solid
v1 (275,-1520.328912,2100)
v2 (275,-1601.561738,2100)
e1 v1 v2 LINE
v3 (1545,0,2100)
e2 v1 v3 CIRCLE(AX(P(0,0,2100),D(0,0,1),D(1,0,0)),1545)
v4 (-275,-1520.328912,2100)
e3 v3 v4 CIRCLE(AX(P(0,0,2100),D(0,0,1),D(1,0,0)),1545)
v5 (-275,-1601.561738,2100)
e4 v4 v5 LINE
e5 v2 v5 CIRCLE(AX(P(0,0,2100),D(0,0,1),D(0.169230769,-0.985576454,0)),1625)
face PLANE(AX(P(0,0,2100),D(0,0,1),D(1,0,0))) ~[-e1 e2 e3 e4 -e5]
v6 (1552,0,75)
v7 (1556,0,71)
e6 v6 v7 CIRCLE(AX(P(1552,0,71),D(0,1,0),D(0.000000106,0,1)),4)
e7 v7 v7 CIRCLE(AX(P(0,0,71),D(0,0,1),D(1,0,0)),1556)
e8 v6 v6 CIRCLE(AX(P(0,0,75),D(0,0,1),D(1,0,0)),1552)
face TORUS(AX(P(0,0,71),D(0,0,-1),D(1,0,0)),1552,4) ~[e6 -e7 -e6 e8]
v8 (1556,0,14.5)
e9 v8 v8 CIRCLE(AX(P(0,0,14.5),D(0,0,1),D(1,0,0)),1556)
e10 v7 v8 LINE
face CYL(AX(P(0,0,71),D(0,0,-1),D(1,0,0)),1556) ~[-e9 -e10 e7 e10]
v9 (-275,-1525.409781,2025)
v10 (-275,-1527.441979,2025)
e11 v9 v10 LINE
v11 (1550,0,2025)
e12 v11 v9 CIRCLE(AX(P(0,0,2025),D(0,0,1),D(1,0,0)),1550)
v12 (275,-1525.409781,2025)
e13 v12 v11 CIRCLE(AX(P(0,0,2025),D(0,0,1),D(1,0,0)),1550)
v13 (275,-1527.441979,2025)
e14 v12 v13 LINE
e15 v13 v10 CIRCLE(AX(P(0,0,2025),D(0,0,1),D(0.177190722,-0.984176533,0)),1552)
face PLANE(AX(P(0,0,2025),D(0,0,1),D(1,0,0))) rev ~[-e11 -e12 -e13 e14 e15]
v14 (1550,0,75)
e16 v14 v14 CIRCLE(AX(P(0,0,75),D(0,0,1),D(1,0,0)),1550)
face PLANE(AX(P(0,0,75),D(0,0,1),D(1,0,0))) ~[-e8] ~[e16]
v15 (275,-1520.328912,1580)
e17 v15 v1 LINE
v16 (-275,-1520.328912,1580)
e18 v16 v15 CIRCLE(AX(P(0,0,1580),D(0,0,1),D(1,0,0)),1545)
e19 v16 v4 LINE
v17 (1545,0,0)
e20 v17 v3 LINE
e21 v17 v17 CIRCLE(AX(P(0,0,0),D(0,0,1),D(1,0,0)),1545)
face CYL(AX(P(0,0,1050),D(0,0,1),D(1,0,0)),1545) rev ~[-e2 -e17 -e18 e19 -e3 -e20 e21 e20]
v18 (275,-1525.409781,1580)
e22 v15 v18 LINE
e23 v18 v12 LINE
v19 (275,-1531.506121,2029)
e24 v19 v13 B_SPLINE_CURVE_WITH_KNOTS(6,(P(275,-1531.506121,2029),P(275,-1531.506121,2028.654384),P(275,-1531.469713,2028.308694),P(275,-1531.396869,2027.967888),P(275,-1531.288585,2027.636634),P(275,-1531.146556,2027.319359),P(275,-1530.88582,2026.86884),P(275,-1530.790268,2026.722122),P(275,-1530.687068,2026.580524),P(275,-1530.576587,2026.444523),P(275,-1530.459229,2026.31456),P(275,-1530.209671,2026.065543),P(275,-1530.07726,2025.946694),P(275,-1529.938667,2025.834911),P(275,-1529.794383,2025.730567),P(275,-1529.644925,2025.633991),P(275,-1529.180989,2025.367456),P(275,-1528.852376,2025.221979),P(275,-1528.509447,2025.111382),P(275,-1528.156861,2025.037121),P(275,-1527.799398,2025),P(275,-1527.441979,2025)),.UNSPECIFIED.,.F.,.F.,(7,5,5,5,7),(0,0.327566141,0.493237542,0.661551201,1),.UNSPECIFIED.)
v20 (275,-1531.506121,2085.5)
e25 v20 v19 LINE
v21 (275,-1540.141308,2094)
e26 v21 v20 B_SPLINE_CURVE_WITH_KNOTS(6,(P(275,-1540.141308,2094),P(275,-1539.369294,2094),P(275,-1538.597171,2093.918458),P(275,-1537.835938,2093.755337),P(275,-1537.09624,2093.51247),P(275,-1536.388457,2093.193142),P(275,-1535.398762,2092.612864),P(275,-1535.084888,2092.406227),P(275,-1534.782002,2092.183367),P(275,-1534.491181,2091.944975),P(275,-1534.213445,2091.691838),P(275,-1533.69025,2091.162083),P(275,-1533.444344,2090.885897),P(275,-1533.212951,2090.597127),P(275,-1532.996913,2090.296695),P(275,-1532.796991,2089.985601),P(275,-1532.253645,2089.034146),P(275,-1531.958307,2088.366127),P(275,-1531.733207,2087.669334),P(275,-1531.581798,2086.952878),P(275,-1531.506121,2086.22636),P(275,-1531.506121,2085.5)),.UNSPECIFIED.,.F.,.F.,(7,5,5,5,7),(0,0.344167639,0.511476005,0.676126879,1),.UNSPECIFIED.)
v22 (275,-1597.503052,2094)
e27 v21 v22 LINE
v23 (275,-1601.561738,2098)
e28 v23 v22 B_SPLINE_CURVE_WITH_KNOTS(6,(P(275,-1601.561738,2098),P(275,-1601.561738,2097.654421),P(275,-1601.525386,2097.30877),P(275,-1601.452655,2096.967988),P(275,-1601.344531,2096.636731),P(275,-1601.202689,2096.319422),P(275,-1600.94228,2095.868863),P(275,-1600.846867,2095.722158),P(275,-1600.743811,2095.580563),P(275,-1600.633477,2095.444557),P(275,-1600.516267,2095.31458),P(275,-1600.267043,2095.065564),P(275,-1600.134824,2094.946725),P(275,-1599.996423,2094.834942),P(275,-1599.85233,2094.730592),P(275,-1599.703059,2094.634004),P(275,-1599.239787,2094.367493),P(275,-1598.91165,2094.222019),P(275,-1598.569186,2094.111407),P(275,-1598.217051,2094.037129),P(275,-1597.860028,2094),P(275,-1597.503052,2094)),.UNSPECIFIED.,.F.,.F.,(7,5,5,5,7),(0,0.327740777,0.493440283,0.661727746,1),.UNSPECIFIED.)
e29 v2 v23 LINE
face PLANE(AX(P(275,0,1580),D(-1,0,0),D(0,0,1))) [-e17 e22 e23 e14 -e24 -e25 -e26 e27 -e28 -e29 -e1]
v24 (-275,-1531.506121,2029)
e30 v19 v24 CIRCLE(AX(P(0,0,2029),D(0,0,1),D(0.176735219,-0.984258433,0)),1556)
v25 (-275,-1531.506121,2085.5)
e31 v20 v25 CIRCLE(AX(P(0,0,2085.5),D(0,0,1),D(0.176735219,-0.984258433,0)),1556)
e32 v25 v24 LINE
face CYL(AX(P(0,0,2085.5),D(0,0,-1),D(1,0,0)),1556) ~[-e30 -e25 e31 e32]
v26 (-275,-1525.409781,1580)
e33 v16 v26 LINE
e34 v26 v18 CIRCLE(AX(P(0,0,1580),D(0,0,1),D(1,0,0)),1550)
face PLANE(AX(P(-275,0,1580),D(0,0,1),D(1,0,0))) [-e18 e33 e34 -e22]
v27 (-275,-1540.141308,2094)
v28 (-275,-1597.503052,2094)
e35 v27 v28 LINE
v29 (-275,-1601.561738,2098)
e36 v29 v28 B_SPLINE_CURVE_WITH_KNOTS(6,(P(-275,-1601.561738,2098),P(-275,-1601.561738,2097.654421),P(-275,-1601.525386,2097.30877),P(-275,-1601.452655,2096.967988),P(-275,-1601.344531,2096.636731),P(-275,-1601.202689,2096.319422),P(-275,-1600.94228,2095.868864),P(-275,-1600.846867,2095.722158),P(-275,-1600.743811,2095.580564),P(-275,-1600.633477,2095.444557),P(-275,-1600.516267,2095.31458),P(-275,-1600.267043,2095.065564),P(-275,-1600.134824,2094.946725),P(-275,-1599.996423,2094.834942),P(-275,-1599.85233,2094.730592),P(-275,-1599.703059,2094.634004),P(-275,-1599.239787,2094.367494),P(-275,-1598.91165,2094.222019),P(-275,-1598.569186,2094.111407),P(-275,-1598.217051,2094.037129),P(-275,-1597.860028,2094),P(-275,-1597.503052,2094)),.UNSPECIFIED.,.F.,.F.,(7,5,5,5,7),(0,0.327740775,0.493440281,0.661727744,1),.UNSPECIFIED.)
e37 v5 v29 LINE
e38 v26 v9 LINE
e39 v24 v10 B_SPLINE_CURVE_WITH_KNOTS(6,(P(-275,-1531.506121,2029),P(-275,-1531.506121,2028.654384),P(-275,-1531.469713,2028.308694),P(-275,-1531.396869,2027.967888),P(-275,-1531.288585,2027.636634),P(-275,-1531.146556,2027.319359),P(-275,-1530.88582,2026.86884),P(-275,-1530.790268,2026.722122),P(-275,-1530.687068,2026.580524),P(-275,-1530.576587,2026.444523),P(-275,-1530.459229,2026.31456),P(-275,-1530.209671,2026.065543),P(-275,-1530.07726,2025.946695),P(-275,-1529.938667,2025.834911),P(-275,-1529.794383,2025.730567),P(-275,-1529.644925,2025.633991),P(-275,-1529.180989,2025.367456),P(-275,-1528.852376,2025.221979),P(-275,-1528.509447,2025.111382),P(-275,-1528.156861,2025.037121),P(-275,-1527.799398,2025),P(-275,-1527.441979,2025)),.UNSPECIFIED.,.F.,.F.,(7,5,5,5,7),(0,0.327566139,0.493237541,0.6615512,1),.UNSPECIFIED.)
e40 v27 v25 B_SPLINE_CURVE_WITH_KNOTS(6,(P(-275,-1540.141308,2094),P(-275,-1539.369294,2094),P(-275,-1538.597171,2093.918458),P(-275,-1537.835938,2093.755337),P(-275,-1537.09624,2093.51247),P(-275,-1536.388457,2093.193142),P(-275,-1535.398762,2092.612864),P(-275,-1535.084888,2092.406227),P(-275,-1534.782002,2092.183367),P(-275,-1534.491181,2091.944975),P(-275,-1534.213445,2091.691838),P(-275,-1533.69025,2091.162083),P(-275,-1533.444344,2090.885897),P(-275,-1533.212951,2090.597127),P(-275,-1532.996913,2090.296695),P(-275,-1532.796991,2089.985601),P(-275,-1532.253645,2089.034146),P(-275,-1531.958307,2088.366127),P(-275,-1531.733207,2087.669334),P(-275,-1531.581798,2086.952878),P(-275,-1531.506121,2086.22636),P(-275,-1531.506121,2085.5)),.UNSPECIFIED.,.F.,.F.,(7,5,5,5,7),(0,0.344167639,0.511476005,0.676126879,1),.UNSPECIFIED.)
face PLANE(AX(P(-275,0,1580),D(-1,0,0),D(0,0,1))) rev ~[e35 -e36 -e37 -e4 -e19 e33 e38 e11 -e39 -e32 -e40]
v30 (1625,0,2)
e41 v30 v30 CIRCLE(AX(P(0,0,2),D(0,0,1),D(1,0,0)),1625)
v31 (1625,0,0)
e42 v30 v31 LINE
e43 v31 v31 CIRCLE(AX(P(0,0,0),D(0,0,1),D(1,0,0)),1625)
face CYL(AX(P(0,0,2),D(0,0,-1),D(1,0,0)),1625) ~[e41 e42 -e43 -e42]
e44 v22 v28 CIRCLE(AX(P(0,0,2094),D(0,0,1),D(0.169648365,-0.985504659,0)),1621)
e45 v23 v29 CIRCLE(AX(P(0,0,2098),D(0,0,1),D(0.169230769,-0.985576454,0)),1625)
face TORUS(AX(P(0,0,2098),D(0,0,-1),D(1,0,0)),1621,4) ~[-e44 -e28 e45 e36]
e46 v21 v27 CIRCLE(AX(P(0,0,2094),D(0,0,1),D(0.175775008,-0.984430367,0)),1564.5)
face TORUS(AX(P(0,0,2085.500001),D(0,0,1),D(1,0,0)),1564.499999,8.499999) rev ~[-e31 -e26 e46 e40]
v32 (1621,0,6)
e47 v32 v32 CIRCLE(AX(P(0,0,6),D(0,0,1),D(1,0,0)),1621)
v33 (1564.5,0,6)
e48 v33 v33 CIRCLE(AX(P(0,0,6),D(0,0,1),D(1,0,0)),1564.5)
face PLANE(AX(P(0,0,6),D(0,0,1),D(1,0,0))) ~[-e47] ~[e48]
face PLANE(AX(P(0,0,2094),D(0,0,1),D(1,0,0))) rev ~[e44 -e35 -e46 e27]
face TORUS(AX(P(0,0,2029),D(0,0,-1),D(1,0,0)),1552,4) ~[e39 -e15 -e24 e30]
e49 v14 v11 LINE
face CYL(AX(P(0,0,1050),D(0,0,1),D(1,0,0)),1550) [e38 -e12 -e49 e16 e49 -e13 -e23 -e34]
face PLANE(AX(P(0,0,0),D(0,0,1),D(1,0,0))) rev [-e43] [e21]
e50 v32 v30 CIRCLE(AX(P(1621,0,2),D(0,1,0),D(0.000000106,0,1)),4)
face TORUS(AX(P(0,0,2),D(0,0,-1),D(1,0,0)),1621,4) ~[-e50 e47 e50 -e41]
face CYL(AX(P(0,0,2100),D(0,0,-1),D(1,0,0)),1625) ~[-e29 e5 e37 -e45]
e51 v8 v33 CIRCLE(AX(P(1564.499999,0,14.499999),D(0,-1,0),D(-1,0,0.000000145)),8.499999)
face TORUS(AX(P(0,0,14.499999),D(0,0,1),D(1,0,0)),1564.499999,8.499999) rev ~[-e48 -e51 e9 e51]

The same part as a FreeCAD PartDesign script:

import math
import FreeCAD as App
import Part
import Sketcher

V = App.Vector


def add_polygon(sketch, points):
    """Adds a closed chain of lines whose ends are joined by coincident constraints."""
    first, n = sketch.GeometryCount, len(points)
    for a, b in zip(points, points[1:] + points[:1]):
        sketch.addGeometry(Part.LineSegment(App.Vector(*a, 0), App.Vector(*b, 0)), False)
    for i in range(n):
        sketch.addConstraint(Sketcher.Constraint("Coincident", first + i, 2, first + (i + 1) % n, 1))

doc = App.newDocument("Part")
body = doc.addObject("PartDesign::Body", "Body")

# Sketch on XZ plane
sketch1 = doc.addObject("Sketcher::SketchObject", "Sketch")
body.addObject(sketch1)
sketch1.AttachmentSupport = (doc.XZ_Plane, [""])
sketch1.MapMode = "FlatFace"
add_polygon(sketch1, [(-275, 2100), (-275, 1580), (275, 1580), (275, 2100)])  # lines 0-3
sketch1.addConstraint(Sketcher.Constraint("Vertical", 0))
sketch1.addConstraint(Sketcher.Constraint("Horizontal", 1))
sketch1.addConstraint(Sketcher.Constraint("Vertical", 2))
sketch1.addConstraint(Sketcher.Constraint("Horizontal", 3))
sketch1.addConstraint(Sketcher.Constraint("DistanceX", 1, 1, 1, 2, 550.0))
sketch1.addConstraint(Sketcher.Constraint("DistanceY", 0, 2, 0, 1, 520.0))
sketch1.addConstraint(Sketcher.Constraint("DistanceX", 0, 2, -1, 1, 275.0))
sketch1.addConstraint(Sketcher.Constraint("DistanceY", -1, 1, 0, 2, 1580.0))
pad1 = doc.addObject("PartDesign::Pad", "Pad")
body.addObject(pad1)
pad1.Profile = sketch1
pad1.Length = 1700
body2 = doc.addObject("PartDesign::Body", "Body001")

# Sketch on XZ plane
sketch2 = doc.addObject("Sketcher::SketchObject", "Sketch001")
body2.addObject(sketch2)
sketch2.AttachmentSupport = (doc.getObject("XZ_Plane001"), [""])
sketch2.MapMode = "FlatFace"
sketch2.addGeometry(Part.LineSegment(V(1550, 0, 0), V(1550, 75, 0)), False)
sketch2.addGeometry(Part.LineSegment(V(1550, 75, 0), V(1552, 75, 0)), False)
sketch2.addGeometry(Part.ArcOfCircle(Part.Circle(V(1552, 71, 0), V(0, 0, 1), 4), math.radians(0.000006), math.radians(89.999994)), False)
sketch2.addGeometry(Part.LineSegment(V(1556, 71, 0), V(1556, 14.5, 0)), False)
sketch2.addGeometry(Part.ArcOfCircle(Part.Circle(V(1564.499999, 14.499999, 0), V(0, 0, 1), 8.499999), math.radians(179.999992), math.radians(270.000008)), False)
sketch2.addGeometry(Part.LineSegment(V(1564.5, 6, 0), V(1621, 6, 0)), False)
sketch2.addGeometry(Part.ArcOfCircle(Part.Circle(V(1621, 2, 0), V(0, 0, 1), 4), math.radians(0.000006), math.radians(89.999994)), False)
sketch2.addGeometry(Part.LineSegment(V(1625, 2, 0), V(1625, 0, 0)), False)
sketch2.addGeometry(Part.LineSegment(V(1625, 0, 0), V(1550, 0, 0)), False)
sketch2.addConstraint(Sketcher.Constraint("Coincident", 0, 2, 1, 1))
sketch2.addConstraint(Sketcher.Constraint("Tangent", 1, 2, 2, 2))
sketch2.addConstraint(Sketcher.Constraint("Tangent", 2, 1, 3, 1))
sketch2.addConstraint(Sketcher.Constraint("Tangent", 3, 2, 4, 1))
sketch2.addConstraint(Sketcher.Constraint("Tangent", 4, 2, 5, 1))
sketch2.addConstraint(Sketcher.Constraint("Tangent", 5, 2, 6, 2))
sketch2.addConstraint(Sketcher.Constraint("Tangent", 6, 1, 7, 1))
sketch2.addConstraint(Sketcher.Constraint("Coincident", 7, 2, 8, 1))
sketch2.addConstraint(Sketcher.Constraint("Coincident", 8, 2, 0, 1))
sketch2.addConstraint(Sketcher.Constraint("Vertical", 0))
sketch2.addConstraint(Sketcher.Constraint("Horizontal", 1))
sketch2.addConstraint(Sketcher.Constraint("Vertical", 3))
sketch2.addConstraint(Sketcher.Constraint("Horizontal", 5))
sketch2.addConstraint(Sketcher.Constraint("Vertical", 7))
sketch2.addConstraint(Sketcher.Constraint("Horizontal", 8))
sketch2.addConstraint(Sketcher.Constraint("Equal", 2, 6))
sketch2.addConstraint(Sketcher.Constraint("PointOnObject", 7, 2, -1))
sketch2.addConstraint(Sketcher.Constraint("Equal", 8, 0))
sketch2.addConstraint(Sketcher.Constraint("Equal", 5, 3))
sketch2.addConstraint(Sketcher.Constraint("Radius", 2, 4.0))
sketch2.addConstraint(Sketcher.Constraint("Radius", 4, 8.499999))
sketch2.addConstraint(Sketcher.Constraint("DistanceX", 1, 1, 1, 2, 2.0))
sketch2.addConstraint(Sketcher.Constraint("DistanceX", 8, 2, 8, 1, 75.0))
sketch2.addConstraint(Sketcher.Constraint("DistanceX", -1, 1, 2, 3, 1552.0))
revolution = doc.addObject("PartDesign::Revolution", "Revolution")
body2.addObject(revolution)
revolution.Profile = sketch2
revolution.ReferenceAxis = (sketch2, ["V_Axis"])
revolution.Angle = 360
body3 = doc.addObject("PartDesign::Body", "Body002")

# Sketch on XZ plane
sketch3 = doc.addObject("Sketcher::SketchObject", "Sketch002")
body3.addObject(sketch3)
sketch3.AttachmentSupport = (doc.getObject("XZ_Plane002"), [""])
sketch3.MapMode = "FlatFace"
sketch3.addGeometry(Part.LineSegment(V(1550, 2100, 0), V(1625, 2100, 0)), False)
sketch3.addGeometry(Part.LineSegment(V(1625, 2100, 0), V(1625, 2098, 0)), False)
sketch3.addGeometry(Part.ArcOfCircle(Part.Circle(V(1621, 2098, 0), V(0, 0, 1), 4), math.radians(-89.999994), math.radians(-0.000006)), False)
sketch3.addGeometry(Part.LineSegment(V(1621, 2094, 0), V(1564.5, 2094, 0)), False)
sketch3.addGeometry(Part.ArcOfCircle(Part.Circle(V(1564.499999, 2085.500001, 0), V(0, 0, 1), 8.499999), math.radians(89.999992), math.radians(180.000008)), False)
sketch3.addGeometry(Part.LineSegment(V(1556, 2085.5, 0), V(1556, 2029, 0)), False)
sketch3.addGeometry(Part.ArcOfCircle(Part.Circle(V(1552, 2029, 0), V(0, 0, 1), 4), math.radians(-89.999994), math.radians(-0.000006)), False)
sketch3.addGeometry(Part.LineSegment(V(1552, 2025, 0), V(1550, 2025, 0)), False)
sketch3.addGeometry(Part.LineSegment(V(1550, 2025, 0), V(1550, 2100, 0)), False)
sketch3.addConstraint(Sketcher.Constraint("Coincident", 0, 2, 1, 1))
sketch3.addConstraint(Sketcher.Constraint("Tangent", 1, 2, 2, 2))
sketch3.addConstraint(Sketcher.Constraint("Tangent", 2, 1, 3, 1))
sketch3.addConstraint(Sketcher.Constraint("Tangent", 3, 2, 4, 1))
sketch3.addConstraint(Sketcher.Constraint("Tangent", 4, 2, 5, 1))
sketch3.addConstraint(Sketcher.Constraint("Tangent", 5, 2, 6, 2))
sketch3.addConstraint(Sketcher.Constraint("Tangent", 6, 1, 7, 1))
sketch3.addConstraint(Sketcher.Constraint("Coincident", 7, 2, 8, 1))
sketch3.addConstraint(Sketcher.Constraint("Coincident", 8, 2, 0, 1))
sketch3.addConstraint(Sketcher.Constraint("Horizontal", 0))
sketch3.addConstraint(Sketcher.Constraint("Vertical", 1))
sketch3.addConstraint(Sketcher.Constraint("Horizontal", 3))
sketch3.addConstraint(Sketcher.Constraint("Vertical", 5))
sketch3.addConstraint(Sketcher.Constraint("Horizontal", 7))
sketch3.addConstraint(Sketcher.Constraint("Vertical", 8))
sketch3.addConstraint(Sketcher.Constraint("Equal", 2, 6))
sketch3.addConstraint(Sketcher.Constraint("Equal", 7, 1))
sketch3.addConstraint(Sketcher.Constraint("Equal", 3, 5))
sketch3.addConstraint(Sketcher.Constraint("Radius", 2, 4.0))
sketch3.addConstraint(Sketcher.Constraint("Radius", 4, 8.499999))
sketch3.addConstraint(Sketcher.Constraint("DistanceX", 0, 1, 0, 2, 75.0))
sketch3.addConstraint(Sketcher.Constraint("DistanceX", 7, 2, 7, 1, 2.0))
sketch3.addConstraint(Sketcher.Constraint("DistanceX", -1, 1, 2, 3, 1621.0))
sketch3.addConstraint(Sketcher.Constraint("DistanceY", -1, 1, 2, 3, 2098.0))
revolution2 = doc.addObject("PartDesign::Revolution", "Revolution001")
body3.addObject(revolution2)
revolution2.Profile = sketch3
revolution2.ReferenceAxis = (sketch3, ["V_Axis"])
revolution2.Angle = 360
body4 = doc.addObject("PartDesign::Body", "Body003")

# Sketch on XZ plane
sketch4 = doc.addObject("Sketcher::SketchObject", "Sketch003")
body4.addObject(sketch4)
sketch4.AttachmentSupport = (doc.getObject("XZ_Plane003"), [""])
sketch4.MapMode = "FlatFace"
add_polygon(sketch4, [(1545, 2100), (1545, 0), (1550, 0), (1550, 2100)])  # lines 0-3
sketch4.addConstraint(Sketcher.Constraint("Vertical", 0))
sketch4.addConstraint(Sketcher.Constraint("Horizontal", 1))
sketch4.addConstraint(Sketcher.Constraint("Vertical", 2))
sketch4.addConstraint(Sketcher.Constraint("Horizontal", 3))
sketch4.addConstraint(Sketcher.Constraint("PointOnObject", 0, 2, -1))
sketch4.addConstraint(Sketcher.Constraint("DistanceX", 1, 1, 1, 2, 5.0))
sketch4.addConstraint(Sketcher.Constraint("DistanceY", 0, 2, 0, 1, 2100.0))
sketch4.addConstraint(Sketcher.Constraint("DistanceX", -1, 1, 0, 2, 1545.0))
revolution3 = doc.addObject("PartDesign::Revolution", "Revolution002")
body4.addObject(revolution3)
revolution3.Profile = sketch4
revolution3.ReferenceAxis = (sketch4, ["V_Axis"])
revolution3.Angle = 360
doc.recompute()

boolean = doc.addObject("PartDesign::Boolean", "Boolean")
body4.addObject(boolean)
boolean.Type = "Fuse"
boolean.addObjects([body2])
doc.recompute()

boolean2 = doc.addObject("PartDesign::Boolean", "Boolean001")
body4.addObject(boolean2)
boolean2.Type = "Fuse"
boolean2.addObjects([body3])
doc.recompute()

boolean3 = doc.addObject("PartDesign::Boolean", "Boolean002")
body4.addObject(boolean3)
boolean3.Type = "Cut"
boolean3.addObjects([body])

doc.recompute()
